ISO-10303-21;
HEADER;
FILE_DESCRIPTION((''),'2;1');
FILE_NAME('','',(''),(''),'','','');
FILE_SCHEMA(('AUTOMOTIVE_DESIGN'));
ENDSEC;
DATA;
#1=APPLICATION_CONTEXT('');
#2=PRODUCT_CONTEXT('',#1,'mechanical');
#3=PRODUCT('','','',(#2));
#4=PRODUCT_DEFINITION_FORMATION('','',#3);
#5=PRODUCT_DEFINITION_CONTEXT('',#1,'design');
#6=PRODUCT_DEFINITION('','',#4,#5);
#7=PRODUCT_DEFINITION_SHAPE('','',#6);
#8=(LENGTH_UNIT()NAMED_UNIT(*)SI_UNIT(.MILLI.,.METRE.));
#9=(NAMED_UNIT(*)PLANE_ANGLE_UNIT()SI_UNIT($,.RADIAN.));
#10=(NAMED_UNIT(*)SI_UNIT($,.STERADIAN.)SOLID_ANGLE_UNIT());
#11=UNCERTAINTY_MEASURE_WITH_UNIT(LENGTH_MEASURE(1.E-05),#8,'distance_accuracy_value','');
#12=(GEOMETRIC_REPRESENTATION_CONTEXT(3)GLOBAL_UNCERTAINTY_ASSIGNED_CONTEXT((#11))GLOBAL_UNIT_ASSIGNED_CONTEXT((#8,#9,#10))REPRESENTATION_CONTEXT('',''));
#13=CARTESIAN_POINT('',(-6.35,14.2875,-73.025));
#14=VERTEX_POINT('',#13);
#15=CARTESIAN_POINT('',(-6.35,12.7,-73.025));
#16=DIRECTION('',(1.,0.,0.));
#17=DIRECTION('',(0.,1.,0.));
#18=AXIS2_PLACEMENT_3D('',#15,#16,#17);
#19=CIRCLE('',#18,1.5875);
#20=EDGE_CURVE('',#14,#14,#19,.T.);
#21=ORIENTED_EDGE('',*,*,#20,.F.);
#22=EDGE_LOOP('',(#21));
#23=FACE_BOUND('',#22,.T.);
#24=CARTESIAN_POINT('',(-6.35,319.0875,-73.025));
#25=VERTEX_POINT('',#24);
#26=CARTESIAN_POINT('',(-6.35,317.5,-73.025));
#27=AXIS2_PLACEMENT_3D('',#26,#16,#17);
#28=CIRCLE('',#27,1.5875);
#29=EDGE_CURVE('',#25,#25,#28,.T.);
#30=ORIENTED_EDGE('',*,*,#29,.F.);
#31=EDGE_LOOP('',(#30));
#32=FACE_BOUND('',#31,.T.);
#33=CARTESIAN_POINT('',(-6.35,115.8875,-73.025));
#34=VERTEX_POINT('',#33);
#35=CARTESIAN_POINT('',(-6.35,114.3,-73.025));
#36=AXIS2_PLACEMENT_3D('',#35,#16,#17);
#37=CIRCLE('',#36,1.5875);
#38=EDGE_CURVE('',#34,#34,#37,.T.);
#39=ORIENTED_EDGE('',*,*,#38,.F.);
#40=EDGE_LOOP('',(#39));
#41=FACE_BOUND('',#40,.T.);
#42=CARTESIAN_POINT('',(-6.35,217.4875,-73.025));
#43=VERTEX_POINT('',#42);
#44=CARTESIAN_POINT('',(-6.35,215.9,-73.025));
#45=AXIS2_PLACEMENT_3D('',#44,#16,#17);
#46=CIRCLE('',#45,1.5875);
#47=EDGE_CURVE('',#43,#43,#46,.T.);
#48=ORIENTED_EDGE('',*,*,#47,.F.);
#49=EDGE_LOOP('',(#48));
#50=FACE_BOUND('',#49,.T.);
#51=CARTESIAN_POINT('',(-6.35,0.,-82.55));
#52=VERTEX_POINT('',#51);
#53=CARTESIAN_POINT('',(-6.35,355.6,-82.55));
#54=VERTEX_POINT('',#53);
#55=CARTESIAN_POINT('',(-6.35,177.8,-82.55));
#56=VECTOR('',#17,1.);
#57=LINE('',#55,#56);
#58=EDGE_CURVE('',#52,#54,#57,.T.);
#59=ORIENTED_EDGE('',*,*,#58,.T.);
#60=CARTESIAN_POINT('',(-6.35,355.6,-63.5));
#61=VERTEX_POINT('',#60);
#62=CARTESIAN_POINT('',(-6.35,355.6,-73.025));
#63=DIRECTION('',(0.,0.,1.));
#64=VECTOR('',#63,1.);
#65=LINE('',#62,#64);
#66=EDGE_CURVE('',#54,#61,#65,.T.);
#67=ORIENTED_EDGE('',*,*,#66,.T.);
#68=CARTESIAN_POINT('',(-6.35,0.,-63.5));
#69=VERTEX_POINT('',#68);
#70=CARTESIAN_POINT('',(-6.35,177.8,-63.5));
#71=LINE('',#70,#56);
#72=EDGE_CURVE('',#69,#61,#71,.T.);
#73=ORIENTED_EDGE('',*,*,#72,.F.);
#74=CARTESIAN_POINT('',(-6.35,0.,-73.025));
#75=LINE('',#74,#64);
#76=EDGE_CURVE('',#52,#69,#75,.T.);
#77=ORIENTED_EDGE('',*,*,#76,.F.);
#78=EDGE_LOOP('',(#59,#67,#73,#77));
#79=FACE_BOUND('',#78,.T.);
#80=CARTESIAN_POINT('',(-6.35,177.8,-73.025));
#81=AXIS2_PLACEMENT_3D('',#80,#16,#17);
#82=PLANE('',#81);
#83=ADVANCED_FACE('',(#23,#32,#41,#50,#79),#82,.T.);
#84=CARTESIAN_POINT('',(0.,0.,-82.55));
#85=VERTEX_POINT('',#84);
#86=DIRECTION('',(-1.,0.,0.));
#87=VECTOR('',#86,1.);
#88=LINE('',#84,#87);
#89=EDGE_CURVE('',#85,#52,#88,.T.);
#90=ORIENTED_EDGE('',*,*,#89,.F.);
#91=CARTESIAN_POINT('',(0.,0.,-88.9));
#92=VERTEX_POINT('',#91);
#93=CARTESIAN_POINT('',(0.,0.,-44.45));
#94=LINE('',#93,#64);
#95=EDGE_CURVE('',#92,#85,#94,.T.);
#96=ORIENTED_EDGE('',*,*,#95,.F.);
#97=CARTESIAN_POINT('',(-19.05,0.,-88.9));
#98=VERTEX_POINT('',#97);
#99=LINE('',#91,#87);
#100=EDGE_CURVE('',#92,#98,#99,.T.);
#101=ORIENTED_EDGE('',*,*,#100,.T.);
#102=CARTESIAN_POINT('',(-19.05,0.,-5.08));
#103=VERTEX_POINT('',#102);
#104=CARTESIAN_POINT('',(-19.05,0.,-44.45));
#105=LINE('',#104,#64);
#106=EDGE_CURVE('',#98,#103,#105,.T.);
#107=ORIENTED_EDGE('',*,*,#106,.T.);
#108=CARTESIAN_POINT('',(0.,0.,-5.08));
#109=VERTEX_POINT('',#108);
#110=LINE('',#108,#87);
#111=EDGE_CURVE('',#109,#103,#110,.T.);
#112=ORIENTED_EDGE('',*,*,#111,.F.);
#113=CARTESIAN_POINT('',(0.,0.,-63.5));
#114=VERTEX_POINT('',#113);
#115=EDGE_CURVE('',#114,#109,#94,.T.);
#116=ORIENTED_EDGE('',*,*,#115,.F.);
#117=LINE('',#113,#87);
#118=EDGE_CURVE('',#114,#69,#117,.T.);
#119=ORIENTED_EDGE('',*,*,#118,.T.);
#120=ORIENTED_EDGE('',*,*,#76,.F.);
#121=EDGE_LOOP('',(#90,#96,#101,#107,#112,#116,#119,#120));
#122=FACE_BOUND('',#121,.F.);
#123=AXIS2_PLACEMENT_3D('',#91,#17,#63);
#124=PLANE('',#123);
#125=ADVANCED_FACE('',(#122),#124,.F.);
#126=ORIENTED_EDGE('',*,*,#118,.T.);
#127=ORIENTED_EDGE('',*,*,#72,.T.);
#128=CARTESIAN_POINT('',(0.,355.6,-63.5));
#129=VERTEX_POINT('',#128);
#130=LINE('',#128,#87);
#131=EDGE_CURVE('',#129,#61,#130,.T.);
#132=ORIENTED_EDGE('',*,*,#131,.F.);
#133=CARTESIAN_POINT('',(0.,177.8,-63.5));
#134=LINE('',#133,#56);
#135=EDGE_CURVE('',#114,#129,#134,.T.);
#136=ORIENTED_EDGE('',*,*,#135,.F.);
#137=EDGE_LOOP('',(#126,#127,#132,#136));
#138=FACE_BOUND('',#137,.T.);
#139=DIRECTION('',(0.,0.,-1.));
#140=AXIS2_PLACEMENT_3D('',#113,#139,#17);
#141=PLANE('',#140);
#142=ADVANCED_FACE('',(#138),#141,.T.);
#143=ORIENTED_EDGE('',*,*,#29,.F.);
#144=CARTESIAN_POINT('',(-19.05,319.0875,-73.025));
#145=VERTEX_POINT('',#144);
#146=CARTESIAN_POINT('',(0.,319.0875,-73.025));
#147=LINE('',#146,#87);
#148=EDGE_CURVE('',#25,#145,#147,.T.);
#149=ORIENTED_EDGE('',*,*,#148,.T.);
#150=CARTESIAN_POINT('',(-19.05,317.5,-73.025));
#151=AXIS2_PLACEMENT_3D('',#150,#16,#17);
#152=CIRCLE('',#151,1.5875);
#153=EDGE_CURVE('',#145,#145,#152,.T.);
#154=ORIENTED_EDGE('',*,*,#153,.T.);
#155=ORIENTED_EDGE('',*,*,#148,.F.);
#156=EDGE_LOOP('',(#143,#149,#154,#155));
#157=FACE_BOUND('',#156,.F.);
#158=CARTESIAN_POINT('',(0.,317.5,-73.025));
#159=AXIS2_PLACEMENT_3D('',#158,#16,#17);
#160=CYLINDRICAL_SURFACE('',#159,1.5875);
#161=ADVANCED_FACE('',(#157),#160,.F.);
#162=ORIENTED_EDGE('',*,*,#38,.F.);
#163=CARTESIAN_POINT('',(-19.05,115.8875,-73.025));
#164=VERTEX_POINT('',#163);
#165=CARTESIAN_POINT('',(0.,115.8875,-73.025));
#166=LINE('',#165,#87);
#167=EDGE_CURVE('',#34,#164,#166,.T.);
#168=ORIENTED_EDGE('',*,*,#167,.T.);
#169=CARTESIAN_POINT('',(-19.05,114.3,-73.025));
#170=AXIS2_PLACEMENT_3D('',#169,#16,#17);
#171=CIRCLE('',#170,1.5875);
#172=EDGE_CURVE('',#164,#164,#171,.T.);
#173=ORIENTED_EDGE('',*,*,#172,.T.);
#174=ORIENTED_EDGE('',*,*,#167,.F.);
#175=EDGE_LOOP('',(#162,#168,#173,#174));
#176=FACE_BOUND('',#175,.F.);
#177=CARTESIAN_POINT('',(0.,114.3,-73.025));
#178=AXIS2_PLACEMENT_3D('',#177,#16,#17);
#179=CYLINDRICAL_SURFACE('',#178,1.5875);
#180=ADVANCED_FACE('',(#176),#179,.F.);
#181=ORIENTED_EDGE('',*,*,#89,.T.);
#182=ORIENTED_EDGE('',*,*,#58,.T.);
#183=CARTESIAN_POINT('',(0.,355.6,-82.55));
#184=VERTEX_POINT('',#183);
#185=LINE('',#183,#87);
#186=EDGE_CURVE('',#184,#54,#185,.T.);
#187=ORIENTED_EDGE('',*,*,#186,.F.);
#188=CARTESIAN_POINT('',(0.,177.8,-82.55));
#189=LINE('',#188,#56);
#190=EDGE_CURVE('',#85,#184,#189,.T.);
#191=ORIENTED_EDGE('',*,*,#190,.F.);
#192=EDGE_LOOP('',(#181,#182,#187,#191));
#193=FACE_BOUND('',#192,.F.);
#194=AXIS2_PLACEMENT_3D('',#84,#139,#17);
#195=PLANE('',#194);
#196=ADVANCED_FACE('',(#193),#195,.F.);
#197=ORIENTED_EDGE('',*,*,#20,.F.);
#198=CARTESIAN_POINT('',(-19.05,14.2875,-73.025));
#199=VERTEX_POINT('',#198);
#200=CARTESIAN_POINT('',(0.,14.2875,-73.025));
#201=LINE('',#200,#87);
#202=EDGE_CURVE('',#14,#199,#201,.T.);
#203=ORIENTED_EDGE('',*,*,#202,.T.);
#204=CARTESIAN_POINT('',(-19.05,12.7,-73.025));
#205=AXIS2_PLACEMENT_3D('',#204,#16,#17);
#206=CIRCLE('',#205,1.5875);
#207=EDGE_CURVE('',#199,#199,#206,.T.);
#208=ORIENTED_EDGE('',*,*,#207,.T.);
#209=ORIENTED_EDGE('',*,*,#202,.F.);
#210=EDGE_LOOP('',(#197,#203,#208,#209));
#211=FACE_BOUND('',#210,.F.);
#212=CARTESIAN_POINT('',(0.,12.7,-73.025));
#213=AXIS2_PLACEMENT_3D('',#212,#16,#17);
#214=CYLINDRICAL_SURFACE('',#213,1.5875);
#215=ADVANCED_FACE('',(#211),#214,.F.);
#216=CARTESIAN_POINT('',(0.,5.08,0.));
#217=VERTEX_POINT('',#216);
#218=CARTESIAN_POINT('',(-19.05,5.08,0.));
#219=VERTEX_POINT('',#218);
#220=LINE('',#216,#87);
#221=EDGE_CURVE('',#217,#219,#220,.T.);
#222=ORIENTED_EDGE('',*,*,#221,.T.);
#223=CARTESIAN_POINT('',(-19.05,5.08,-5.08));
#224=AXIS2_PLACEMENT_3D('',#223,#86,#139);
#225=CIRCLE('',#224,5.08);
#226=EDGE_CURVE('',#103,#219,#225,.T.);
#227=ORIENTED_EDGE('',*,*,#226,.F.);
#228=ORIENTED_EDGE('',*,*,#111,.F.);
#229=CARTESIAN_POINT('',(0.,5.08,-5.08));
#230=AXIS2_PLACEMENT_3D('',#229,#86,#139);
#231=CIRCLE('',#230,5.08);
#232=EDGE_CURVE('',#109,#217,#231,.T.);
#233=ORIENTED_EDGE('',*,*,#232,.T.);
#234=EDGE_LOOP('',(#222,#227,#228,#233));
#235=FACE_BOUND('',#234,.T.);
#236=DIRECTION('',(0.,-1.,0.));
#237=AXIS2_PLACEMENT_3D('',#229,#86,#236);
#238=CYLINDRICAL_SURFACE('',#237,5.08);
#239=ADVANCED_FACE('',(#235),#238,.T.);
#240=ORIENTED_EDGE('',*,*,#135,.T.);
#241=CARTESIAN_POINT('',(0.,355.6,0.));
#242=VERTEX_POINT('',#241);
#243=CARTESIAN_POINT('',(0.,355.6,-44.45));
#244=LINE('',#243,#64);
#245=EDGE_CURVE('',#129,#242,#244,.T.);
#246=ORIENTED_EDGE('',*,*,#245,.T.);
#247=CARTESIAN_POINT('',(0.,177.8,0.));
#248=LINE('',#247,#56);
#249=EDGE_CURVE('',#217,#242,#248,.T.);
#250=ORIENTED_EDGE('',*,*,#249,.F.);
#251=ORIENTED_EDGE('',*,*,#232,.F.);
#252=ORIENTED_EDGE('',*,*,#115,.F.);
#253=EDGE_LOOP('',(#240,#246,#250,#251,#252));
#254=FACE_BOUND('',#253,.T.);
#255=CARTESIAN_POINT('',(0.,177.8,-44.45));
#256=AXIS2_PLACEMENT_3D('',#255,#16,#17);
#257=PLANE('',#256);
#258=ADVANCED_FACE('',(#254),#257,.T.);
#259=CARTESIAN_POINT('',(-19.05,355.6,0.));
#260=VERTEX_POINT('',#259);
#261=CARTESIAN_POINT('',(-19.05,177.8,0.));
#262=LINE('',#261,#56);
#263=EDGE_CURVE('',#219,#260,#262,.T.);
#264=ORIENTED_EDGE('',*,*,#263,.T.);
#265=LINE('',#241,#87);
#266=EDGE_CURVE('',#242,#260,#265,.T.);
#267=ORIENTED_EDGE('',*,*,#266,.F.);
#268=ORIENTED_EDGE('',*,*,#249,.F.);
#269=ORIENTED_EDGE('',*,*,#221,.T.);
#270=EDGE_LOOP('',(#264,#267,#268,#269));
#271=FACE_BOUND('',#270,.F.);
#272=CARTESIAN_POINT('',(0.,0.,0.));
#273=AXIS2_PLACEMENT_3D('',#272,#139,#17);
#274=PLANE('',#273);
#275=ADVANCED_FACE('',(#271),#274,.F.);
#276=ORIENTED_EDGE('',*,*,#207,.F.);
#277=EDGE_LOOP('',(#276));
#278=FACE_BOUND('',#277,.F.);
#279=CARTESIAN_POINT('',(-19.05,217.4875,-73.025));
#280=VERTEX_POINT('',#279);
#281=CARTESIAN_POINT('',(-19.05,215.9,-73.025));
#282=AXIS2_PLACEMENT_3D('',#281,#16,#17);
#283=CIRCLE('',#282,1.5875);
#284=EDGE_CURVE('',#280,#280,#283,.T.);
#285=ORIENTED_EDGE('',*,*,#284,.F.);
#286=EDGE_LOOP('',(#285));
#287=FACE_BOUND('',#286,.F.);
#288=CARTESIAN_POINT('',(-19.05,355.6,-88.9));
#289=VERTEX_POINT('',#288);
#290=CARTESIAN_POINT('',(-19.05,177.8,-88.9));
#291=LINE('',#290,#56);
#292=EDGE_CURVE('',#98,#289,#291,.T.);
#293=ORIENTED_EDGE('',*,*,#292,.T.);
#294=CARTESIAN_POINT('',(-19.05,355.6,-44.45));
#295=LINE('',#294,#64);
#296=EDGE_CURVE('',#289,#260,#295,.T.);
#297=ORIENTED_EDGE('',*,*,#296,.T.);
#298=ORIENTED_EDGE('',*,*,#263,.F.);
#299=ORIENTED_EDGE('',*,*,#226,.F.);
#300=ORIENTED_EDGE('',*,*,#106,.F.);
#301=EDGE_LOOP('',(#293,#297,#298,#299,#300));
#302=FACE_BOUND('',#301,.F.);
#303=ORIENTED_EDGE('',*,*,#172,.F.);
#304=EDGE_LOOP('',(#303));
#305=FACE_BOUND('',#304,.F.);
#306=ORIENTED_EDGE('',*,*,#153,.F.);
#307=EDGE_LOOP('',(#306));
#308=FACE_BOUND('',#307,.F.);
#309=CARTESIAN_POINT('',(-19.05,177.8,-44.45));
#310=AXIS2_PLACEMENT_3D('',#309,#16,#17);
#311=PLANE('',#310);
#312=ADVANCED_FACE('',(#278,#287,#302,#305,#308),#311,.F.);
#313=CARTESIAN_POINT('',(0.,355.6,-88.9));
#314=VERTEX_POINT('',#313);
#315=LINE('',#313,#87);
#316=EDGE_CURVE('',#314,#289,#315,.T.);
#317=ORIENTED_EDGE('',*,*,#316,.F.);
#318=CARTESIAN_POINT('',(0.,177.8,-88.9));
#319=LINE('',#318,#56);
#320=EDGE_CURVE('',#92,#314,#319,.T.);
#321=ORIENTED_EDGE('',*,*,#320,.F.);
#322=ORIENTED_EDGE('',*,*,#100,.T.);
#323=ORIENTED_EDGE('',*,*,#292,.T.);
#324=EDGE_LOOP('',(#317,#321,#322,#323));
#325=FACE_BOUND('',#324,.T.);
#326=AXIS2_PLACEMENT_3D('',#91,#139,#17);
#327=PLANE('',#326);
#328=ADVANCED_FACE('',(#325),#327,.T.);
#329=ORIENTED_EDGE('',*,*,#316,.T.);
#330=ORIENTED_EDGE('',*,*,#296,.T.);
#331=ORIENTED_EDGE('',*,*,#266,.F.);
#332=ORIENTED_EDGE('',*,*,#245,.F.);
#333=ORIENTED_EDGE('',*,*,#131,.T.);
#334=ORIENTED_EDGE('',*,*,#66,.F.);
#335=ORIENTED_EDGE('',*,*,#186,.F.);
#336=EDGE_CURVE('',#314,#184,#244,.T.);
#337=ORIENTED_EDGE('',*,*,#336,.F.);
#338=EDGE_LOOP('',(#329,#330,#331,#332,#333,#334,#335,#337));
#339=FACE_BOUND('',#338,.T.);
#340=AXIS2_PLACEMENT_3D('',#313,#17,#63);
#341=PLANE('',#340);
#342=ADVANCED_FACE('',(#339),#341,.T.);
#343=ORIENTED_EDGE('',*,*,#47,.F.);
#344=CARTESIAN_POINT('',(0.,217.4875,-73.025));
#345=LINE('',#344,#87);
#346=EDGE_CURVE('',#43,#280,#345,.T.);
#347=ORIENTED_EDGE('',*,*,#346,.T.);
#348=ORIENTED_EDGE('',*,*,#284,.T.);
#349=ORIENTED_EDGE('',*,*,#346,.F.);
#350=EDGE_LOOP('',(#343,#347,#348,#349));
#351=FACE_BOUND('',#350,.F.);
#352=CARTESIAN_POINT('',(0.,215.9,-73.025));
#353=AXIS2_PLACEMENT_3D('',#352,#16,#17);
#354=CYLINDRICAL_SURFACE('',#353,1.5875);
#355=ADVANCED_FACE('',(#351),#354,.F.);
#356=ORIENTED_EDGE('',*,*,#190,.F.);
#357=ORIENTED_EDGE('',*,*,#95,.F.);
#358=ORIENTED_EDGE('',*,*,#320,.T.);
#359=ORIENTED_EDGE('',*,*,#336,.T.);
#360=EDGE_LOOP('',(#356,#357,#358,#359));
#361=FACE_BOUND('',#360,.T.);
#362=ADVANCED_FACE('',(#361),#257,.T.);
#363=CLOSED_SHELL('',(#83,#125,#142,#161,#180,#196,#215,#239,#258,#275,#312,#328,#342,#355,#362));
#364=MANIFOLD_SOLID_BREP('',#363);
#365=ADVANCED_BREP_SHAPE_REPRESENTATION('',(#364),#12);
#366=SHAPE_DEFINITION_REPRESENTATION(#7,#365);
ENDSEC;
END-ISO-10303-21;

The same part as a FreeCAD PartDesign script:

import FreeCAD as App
import Part
import Sketcher
from FreeCAD import Vector
Q = App.Units.Quantity


def edges_at(feature, points):
    """Names of the edges that pass closest to the given points."""
    edges = feature.Shape.Edges
    near = lambda p: min(range(len(edges)), key=lambda i: edges[i].distToShape(Part.Vertex(*p))[0])
    return sorted({f"Edge{near(p) + 1}" for p in points})

doc = App.newDocument("Part")
body = doc.addObject("PartDesign::Body", "Body")

# Sketch on YZ plane
sketch1 = body.newObject("Sketcher::SketchObject", "Sketch")
sketch1.AttachmentSupport = (doc.getObject("YZ_Plane"), [""])
sketch1.MapMode = "FlatFace"
sketch1.addGeometry([
    Part.LineSegment(Vector(0, 0, 0), Vector(0, -89, 0)),
    Part.LineSegment(Vector(0, -89, 0), Vector(356, -89, 0)),
    Part.LineSegment(Vector(356, -89, 0), Vector(356, 0, 0)),
    Part.LineSegment(Vector(356, 0, 0), Vector(0, 0, 0)),
], False)
sketch1.addConstraint([
    Sketcher.Constraint("Coincident", 0, 2, 1, 1),
    Sketcher.Constraint("Coincident", 1, 2, 2, 1),
    Sketcher.Constraint("Coincident", 2, 2, 3, 1),
    Sketcher.Constraint("Coincident", 3, 2, 0, 1),
    Sketcher.Constraint("Vertical", 0),
    Sketcher.Constraint("Horizontal", 1),
    Sketcher.Constraint("Vertical", 2),
    Sketcher.Constraint("Horizontal", 3),
    Sketcher.Constraint("Coincident", 3, 2, -1, 1),
    Sketcher.Constraint("DistanceX", 1, 1, 1, 2, Q("14 in")),
    Sketcher.Constraint("DistanceY", 0, 2, 0, 1, Q("3.5 in")),
])
pad1 = body.newObject("PartDesign::Pad", "Pad")
pad1.Profile = sketch1
pad1.Length = Q("0.75 in")
pad1.Reversed = True

# Sketch on YZ plane
sketch2 = body.newObject("Sketcher::SketchObject", "Sketch001")
sketch2.AttachmentSupport = (doc.getObject("YZ_Plane"), [""])
sketch2.MapMode = "FlatFace"
sketch2.addGeometry([
    Part.LineSegment(Vector(0, -64, 0), Vector(0, -83, 0)),
    Part.LineSegment(Vector(0, -83, 0), Vector(356, -83, 0)),
    Part.LineSegment(Vector(356, -83, 0), Vector(356, -64, 0)),
    Part.LineSegment(Vector(356, -64, 0), Vector(0, -64, 0)),
], False)
sketch2.addConstraint([
    Sketcher.Constraint("Coincident", 0, 2, 1, 1),
    Sketcher.Constraint("Coincident", 1, 2, 2, 1),
    Sketcher.Constraint("Coincident", 2, 2, 3, 1),
    Sketcher.Constraint("Coincident", 3, 2, 0, 1),
    Sketcher.Constraint("Vertical", 0),
    Sketcher.Constraint("Horizontal", 1),
    Sketcher.Constraint("Vertical", 2),
    Sketcher.Constraint("Horizontal", 3),
    Sketcher.Constraint("PointOnObject", 0, 2, -2),
    Sketcher.Constraint("DistanceX", 1, 1, 1, 2, Q("14 in")),
    Sketcher.Constraint("DistanceY", 0, 2, 0, 1, Q("0.75 in")),
    Sketcher.Constraint("DistanceY", 2, 2, -1, 1, Q("2.5 in")),
])
pocket1 = body.newObject("PartDesign::Pocket", "Pocket")
pocket1.Profile = sketch2
pocket1.Length = Q("0.25 in")
doc.recompute()

fillet = body.newObject("PartDesign::Fillet", "Fillet")
fillet.Base = (pocket1, edges_at(pocket1, [(-9.525, 0, 0)]))
fillet.Radius = Q("0.2 in")

# Sketch on YZ plane
sketch3 = body.newObject("Sketcher::SketchObject", "Sketch002")
sketch3.AttachmentSupport = (doc.getObject("YZ_Plane"), [""])
sketch3.MapMode = "FlatFace"
sketch3.addGeometry([
    Part.Circle(Vector(12.7, -73, 0), Vector(0, 0, 1), 1.6),
    Part.Circle(Vector(114.3, -73, 0), Vector(0, 0, 1), 1.6),
    Part.Circle(Vector(215.9, -73, 0), Vector(0, 0, 1), 1.6),
    Part.Circle(Vector(317.5, -73, 0), Vector(0, 0, 1), 1.6),
], False)
sketch3.addConstraint([
    Sketcher.Constraint("Equal", 0, 1),
    Sketcher.Constraint("Equal", 1, 2),
    Sketcher.Constraint("Equal", 2, 3),
    Sketcher.Constraint("Horizontal", 0, 3, 1, 3),
    Sketcher.Constraint("Horizontal", 1, 3, 2, 3),
    Sketcher.Constraint("Horizontal", 2, 3, 3, 3),
    Sketcher.Constraint("Diameter", 0, Q("0.125 in")),
    Sketcher.Constraint("DistanceX", 0, 3, 1, 3, Q("4 in")),
    Sketcher.Constraint("DistanceX", 1, 3, 2, 3, Q("4 in")),
    Sketcher.Constraint("DistanceX", 2, 3, 3, 3, Q("4 in")),
    Sketcher.Constraint("DistanceX", -1, 1, 0, 3, Q("0.5 in")),
    Sketcher.Constraint("DistanceY", 0, 3, -1, 1, Q("2.875 in")),
])
pocket2 = body.newObject("PartDesign::Pocket", "Pocket001")
pocket2.Profile = sketch3
pocket2.Type = "ThroughAll"

doc.recompute()
